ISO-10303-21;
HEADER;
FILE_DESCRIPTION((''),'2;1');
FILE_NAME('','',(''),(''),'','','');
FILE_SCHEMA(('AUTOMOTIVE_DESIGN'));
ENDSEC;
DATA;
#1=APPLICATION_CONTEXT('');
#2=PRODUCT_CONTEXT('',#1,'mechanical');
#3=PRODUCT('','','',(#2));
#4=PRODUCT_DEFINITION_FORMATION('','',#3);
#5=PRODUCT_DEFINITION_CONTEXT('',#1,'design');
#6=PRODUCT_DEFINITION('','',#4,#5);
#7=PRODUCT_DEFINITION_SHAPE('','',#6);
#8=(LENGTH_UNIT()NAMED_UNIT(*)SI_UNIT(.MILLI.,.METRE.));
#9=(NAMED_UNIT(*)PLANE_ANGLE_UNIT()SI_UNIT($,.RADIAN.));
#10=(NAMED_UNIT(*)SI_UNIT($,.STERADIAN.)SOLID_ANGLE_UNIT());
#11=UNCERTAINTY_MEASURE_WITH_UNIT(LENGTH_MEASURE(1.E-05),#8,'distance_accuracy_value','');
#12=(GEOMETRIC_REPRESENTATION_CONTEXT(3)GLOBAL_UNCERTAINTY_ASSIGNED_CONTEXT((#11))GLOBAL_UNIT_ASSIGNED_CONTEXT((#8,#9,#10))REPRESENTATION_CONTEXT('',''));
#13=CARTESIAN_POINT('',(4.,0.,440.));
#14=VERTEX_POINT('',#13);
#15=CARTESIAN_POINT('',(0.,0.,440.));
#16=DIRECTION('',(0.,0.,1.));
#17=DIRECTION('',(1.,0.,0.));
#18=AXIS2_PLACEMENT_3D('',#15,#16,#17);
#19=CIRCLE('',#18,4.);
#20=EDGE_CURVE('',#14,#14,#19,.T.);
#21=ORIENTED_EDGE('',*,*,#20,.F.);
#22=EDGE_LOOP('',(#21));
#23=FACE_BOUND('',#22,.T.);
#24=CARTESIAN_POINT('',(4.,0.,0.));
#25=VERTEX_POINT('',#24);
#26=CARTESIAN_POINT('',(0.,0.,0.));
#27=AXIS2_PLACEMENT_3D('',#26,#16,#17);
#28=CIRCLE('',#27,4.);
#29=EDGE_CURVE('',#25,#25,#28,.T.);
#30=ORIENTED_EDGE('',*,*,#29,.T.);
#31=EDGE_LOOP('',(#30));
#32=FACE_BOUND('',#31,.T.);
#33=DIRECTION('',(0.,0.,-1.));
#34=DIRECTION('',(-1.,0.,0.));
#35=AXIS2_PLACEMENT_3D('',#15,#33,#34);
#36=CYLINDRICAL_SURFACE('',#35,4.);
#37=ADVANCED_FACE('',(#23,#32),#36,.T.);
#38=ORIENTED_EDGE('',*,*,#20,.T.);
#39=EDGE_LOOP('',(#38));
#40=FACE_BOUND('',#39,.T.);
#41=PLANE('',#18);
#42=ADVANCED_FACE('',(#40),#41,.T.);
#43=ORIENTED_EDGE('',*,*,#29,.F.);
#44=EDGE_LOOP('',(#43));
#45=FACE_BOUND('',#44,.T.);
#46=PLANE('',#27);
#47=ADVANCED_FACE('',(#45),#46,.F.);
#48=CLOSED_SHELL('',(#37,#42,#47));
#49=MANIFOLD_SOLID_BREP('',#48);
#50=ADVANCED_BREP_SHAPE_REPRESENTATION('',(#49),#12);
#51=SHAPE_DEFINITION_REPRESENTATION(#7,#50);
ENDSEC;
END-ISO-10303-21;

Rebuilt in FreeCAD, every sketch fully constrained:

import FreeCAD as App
import Part
import Sketcher
from FreeCAD import Vector

doc = App.newDocument("Part")
body = doc.addObject("PartDesign::Body", "Body")

sketch1 = body.newObject("Sketcher::SketchObject", "Sketch")
sketch1.AttachmentSupport = (doc.getObject("XY_Plane"), [""])
sketch1.MapMode = "FlatFace"
sketch1.addGeometry(Part.Circle(Vector(0, 0, 0), Vector(0, 0, 1), 4), False)
sketch1.addConstraint([
    Sketcher.Constraint("Coincident", 0, 3, -1, 1),
    Sketcher.Constraint("Diameter", 0, 8.0),
])
pad1 = body.newObject("PartDesign::Pad", "Pad")
pad1.Profile = sketch1
pad1.Length = 440

doc.recompute()
